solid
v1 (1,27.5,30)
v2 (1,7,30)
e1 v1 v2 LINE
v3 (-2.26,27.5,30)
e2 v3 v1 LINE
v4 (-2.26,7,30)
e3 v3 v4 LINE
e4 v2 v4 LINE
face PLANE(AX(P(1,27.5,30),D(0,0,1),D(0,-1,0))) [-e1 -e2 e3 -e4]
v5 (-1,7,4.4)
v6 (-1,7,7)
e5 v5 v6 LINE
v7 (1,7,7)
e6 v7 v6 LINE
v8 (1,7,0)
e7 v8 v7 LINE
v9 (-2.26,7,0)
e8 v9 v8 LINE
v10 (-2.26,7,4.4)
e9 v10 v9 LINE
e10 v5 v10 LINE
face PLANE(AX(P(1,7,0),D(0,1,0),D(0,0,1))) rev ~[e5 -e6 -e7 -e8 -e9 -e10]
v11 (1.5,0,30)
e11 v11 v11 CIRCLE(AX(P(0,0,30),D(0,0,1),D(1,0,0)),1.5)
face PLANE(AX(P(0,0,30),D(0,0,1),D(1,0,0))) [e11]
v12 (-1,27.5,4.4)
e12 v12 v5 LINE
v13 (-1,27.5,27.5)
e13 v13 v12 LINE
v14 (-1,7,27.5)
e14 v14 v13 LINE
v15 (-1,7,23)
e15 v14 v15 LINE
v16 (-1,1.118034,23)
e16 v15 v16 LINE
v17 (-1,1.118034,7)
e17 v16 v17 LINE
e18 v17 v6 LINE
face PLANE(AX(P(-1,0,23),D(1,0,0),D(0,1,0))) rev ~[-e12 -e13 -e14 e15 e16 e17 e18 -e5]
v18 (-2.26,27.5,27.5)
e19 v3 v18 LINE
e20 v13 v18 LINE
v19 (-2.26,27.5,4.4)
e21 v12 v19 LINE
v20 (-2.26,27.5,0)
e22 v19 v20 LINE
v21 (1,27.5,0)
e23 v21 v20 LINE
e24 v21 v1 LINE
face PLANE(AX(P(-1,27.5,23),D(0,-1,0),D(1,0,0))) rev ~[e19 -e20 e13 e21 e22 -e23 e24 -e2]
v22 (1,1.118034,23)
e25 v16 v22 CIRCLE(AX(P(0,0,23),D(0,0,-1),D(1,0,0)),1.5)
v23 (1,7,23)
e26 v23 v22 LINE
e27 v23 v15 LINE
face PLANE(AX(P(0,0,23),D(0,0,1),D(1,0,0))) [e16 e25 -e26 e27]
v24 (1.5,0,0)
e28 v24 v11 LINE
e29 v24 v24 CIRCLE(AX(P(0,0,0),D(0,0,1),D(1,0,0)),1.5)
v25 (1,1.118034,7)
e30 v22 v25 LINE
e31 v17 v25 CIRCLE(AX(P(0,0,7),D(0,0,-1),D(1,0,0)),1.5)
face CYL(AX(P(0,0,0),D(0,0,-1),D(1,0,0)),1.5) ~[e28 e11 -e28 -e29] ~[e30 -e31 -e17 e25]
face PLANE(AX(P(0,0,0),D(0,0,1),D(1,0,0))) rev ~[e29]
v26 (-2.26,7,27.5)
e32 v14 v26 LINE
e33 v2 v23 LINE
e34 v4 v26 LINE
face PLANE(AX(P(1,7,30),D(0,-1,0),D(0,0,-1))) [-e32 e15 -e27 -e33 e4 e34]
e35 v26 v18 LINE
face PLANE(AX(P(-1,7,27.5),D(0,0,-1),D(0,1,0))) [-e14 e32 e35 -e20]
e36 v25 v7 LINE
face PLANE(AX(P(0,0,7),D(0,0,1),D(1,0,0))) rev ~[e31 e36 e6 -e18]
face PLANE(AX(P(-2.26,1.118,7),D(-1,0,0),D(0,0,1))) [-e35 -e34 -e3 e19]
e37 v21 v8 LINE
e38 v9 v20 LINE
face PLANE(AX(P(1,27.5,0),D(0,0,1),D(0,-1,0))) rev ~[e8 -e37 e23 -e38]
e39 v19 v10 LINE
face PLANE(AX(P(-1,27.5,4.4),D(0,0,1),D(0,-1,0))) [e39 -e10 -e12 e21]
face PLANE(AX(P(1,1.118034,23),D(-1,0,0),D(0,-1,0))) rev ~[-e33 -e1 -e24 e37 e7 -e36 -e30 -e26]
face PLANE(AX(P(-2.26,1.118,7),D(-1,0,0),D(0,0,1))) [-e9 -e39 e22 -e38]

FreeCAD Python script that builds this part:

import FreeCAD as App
import Part
import Sketcher

V = App.Vector

doc = App.newDocument("Part")
params = doc.addObject("Spreadsheet::Sheet", "Params")
for row, (alias, value) in enumerate([
    ("sketch1_diameter", "3 mm"),
    ("pad1_length", "30 mm"),
    ("sketch2_height", "27.5 mm"),
    ("pad2_length", "16 mm"),
    ("sketch3_height", "7 mm"),
    ("sketch3_width", "20.5 mm"),
    ("pad3_length", "2 mm"),
    ("sketch4_height", "2.5 mm"),
    ("sketch4_height2", "4.4 mm"),
    ("sketch4_width", "20.5 mm"),
    ("pad4_length", "1.26 mm"),
], start=1):
    params.set(f"A{row}", alias)
    params.set(f"B{row}", "=" + value)
    params.setAlias(f"B{row}", alias)

body = doc.addObject("PartDesign::Body", "Body")

sketch1 = body.newObject("Sketcher::SketchObject", "Sketch")
sketch1.AttachmentSupport = (doc.getObject("XY_Plane"), [""])
sketch1.MapMode = "FlatFace"
sketch1.addGeometry(Part.Circle(V(0, 0, 0), V(0, 0, 1), 1.5), False)
sketch1.addConstraint([
    Sketcher.Constraint("Coincident", 0, 3, -1, 1),
    Sketcher.Constraint("Diameter", 0, 3.0),
])
sketch1.setExpression("Constraints[1]", "Params.sketch1_diameter")
pad1 = body.newObject("PartDesign::Pad", "Pad")
pad1.Profile = sketch1
pad1.setExpression("Length", "Params.pad1_length")

sketch2 = body.newObject("Sketcher::SketchObject", "Sketch001")
sketch2.AttachmentSupport = (doc.getObject("XY_Plane"), [""])
sketch2.MapMode = "FlatFace"
sketch2.AttachmentOffset = App.Placement(V(0, 0, 23), App.Rotation())
sketch2.addGeometry([
    Part.LineSegment(V(1, 0, 0), V(1, 27.5, 0)),
    Part.LineSegment(V(1, 27.5, 0), V(-1, 27.5, 0)),
    Part.LineSegment(V(-1, 27.5, 0), V(-1, 0, 0)),
    Part.LineSegment(V(-1, 0, 0), V(1, 0, 0)),
], False)
sketch2.addConstraint([
    Sketcher.Constraint("Coincident", 0, 2, 1, 1),
    Sketcher.Constraint("Coincident", 1, 2, 2, 1),
    Sketcher.Constraint("Coincident", 2, 2, 3, 1),
    Sketcher.Constraint("Coincident", 3, 2, 0, 1),
    Sketcher.Constraint("Vertical", 0),
    Sketcher.Constraint("Horizontal", 1),
    Sketcher.Constraint("Vertical", 2),
    Sketcher.Constraint("Horizontal", 3),
    Sketcher.Constraint("Symmetric", 2, 2, 3, 2, -1, 1),
    Sketcher.Constraint("DistanceY", 0, 1, 0, 2, 27.5),
    Sketcher.Constraint("DistanceX", -1, 1, 0, 2, 1.0),
])
sketch2.setExpression("Constraints[9]", "Params.sketch2_height")
pad2 = body.newObject("PartDesign::Pad", "Pad001")
pad2.Profile = sketch2
pad2.setExpression("Length", "Params.pad2_length")
pad2.Reversed = True

sketch3 = body.newObject("Sketcher::SketchObject", "Sketch002")
sketch3.AttachmentSupport = (doc.getObject("YZ_Plane"), [""])
sketch3.MapMode = "FlatFace"
sketch3.AttachmentOffset = App.Placement(V(0, 0, 1), App.Rotation())
sketch3.addGeometry([
    Part.LineSegment(V(28, 7, 0), V(7, 7, 0)),
    Part.LineSegment(V(7, 7, 0), V(7, 0, 0)),
    Part.LineSegment(V(7, 0, 0), V(28, 0, 0)),
    Part.LineSegment(V(28, 0, 0), V(28, 7, 0)),
    Part.LineSegment(V(7, 30, 0), V(7, 23, 0)),
    Part.LineSegment(V(7, 23, 0), V(28, 23, 0)),
    Part.LineSegment(V(28, 23, 0), V(28, 30, 0)),
    Part.LineSegment(V(28, 30, 0), V(7, 30, 0)),
], False)
sketch3.addConstraint([
    Sketcher.Constraint("Coincident", 0, 2, 1, 1),
    Sketcher.Constraint("Coincident", 1, 2, 2, 1),
    Sketcher.Constraint("Coincident", 2, 2, 3, 1),
    Sketcher.Constraint("Coincident", 3, 2, 0, 1),
    Sketcher.Constraint("Coincident", 4, 2, 5, 1),
    Sketcher.Constraint("Coincident", 5, 2, 6, 1),
    Sketcher.Constraint("Coincident", 6, 2, 7, 1),
    Sketcher.Constraint("Coincident", 7, 2, 4, 1),
    Sketcher.Constraint("Horizontal", 0),
    Sketcher.Constraint("Vertical", 1),
    Sketcher.Constraint("Horizontal", 2),
    Sketcher.Constraint("Vertical", 3),
    Sketcher.Constraint("Vertical", 4),
    Sketcher.Constraint("Horizontal", 5),
    Sketcher.Constraint("Vertical", 6),
    Sketcher.Constraint("Horizontal", 7),
    Sketcher.Constraint("PointOnObject", 1, 2, -1),
    Sketcher.Constraint("Vertical", 1, 2, 4, 2),
    Sketcher.Constraint("Vertical", 3, 2, 5, 2),
    Sketcher.Constraint("Equal", 3, 4),
    Sketcher.Constraint("DistanceY", 1, 2, 1, 1, 7.0),
    Sketcher.Constraint("DistanceX", 0, 2, 0, 1, 20.5),
    Sketcher.Constraint("DistanceX", -1, 1, 0, 2, 7.0),
    Sketcher.Constraint("DistanceY", -1, 1, 4, 2, 23.0),
])
sketch3.setExpression("Constraints[20]", "Params.sketch3_height")
sketch3.setExpression("Constraints[21]", "Params.sketch3_width")
pad3 = body.newObject("PartDesign::Pad", "Pad002")
pad3.Profile = sketch3
pad3.setExpression("Length", "Params.pad3_length")
pad3.Reversed = True

sketch4 = body.newObject("Sketcher::SketchObject", "Sketch003")
sketch4.AttachmentSupport = (doc.getObject("YZ_Plane"), [""])
sketch4.MapMode = "FlatFace"
sketch4.AttachmentOffset = App.Placement(V(0, 0, -1), App.Rotation())
sketch4.addGeometry([
    Part.LineSegment(V(27.5, 27.5, 0), V(7, 27.5, 0)),
    Part.LineSegment(V(7, 27.5, 0), V(7, 30, 0)),
    Part.LineSegment(V(7, 30, 0), V(27.5, 30, 0)),
    Part.LineSegment(V(27.5, 30, 0), V(27.5, 27.5, 0)),
    Part.LineSegment(V(7, 0, 0), V(7, 4.4, 0)),
    Part.LineSegment(V(7, 4.4, 0), V(27.5, 4.4, 0)),
    Part.LineSegment(V(27.5, 4.4, 0), V(27.5, 0, 0)),
    Part.LineSegment(V(27.5, 0, 0), V(7, 0, 0)),
], False)
sketch4.addConstraint([
    Sketcher.Constraint("Coincident", 0, 2, 1, 1),
    Sketcher.Constraint("Coincident", 1, 2, 2, 1),
    Sketcher.Constraint("Coincident", 2, 2, 3, 1),
    Sketcher.Constraint("Coincident", 3, 2, 0, 1),
    Sketcher.Constraint("Coincident", 4, 2, 5, 1),
    Sketcher.Constraint("Coincident", 5, 2, 6, 1),
    Sketcher.Constraint("Coincident", 6, 2, 7, 1),
    Sketcher.Constraint("Coincident", 7, 2, 4, 1),
    Sketcher.Constraint("Horizontal", 0),
    Sketcher.Constraint("Vertical", 1),
    Sketcher.Constraint("Horizontal", 2),
    Sketcher.Constraint("Vertical", 3),
    Sketcher.Constraint("Vertical", 4),
    Sketcher.Constraint("Horizontal", 5),
    Sketcher.Constraint("Vertical", 6),
    Sketcher.Constraint("Horizontal", 7),
    Sketcher.Constraint("PointOnObject", 6, 2, -1),
    Sketcher.Constraint("Vertical", 1, 2, 4, 2),
    Sketcher.Constraint("Vertical", 3, 2, 5, 2),
    Sketcher.Constraint("DistanceY", 1, 1, 1, 2, 2.5),
    Sketcher.Constraint("DistanceY", 4, 1, 4, 2, 4.4),
    Sketcher.Constraint("DistanceX", 0, 2, 0, 1, 20.5),
    Sketcher.Constraint("DistanceX", -1, 1, 0, 2, 7.0),
    Sketcher.Constraint("DistanceY", -1, 1, 1, 2, 30.0),
])
sketch4.setExpression("Constraints[19]", "Params.sketch4_height")
sketch4.setExpression("Constraints[20]", "Params.sketch4_height2")
sketch4.setExpression("Constraints[21]", "Params.sketch4_width")
pad4 = body.newObject("PartDesign::Pad", "Pad003")
pad4.Profile = sketch4
pad4.setExpression("Length", "Params.pad4_length")
pad4.Reversed = True

doc.recompute()
